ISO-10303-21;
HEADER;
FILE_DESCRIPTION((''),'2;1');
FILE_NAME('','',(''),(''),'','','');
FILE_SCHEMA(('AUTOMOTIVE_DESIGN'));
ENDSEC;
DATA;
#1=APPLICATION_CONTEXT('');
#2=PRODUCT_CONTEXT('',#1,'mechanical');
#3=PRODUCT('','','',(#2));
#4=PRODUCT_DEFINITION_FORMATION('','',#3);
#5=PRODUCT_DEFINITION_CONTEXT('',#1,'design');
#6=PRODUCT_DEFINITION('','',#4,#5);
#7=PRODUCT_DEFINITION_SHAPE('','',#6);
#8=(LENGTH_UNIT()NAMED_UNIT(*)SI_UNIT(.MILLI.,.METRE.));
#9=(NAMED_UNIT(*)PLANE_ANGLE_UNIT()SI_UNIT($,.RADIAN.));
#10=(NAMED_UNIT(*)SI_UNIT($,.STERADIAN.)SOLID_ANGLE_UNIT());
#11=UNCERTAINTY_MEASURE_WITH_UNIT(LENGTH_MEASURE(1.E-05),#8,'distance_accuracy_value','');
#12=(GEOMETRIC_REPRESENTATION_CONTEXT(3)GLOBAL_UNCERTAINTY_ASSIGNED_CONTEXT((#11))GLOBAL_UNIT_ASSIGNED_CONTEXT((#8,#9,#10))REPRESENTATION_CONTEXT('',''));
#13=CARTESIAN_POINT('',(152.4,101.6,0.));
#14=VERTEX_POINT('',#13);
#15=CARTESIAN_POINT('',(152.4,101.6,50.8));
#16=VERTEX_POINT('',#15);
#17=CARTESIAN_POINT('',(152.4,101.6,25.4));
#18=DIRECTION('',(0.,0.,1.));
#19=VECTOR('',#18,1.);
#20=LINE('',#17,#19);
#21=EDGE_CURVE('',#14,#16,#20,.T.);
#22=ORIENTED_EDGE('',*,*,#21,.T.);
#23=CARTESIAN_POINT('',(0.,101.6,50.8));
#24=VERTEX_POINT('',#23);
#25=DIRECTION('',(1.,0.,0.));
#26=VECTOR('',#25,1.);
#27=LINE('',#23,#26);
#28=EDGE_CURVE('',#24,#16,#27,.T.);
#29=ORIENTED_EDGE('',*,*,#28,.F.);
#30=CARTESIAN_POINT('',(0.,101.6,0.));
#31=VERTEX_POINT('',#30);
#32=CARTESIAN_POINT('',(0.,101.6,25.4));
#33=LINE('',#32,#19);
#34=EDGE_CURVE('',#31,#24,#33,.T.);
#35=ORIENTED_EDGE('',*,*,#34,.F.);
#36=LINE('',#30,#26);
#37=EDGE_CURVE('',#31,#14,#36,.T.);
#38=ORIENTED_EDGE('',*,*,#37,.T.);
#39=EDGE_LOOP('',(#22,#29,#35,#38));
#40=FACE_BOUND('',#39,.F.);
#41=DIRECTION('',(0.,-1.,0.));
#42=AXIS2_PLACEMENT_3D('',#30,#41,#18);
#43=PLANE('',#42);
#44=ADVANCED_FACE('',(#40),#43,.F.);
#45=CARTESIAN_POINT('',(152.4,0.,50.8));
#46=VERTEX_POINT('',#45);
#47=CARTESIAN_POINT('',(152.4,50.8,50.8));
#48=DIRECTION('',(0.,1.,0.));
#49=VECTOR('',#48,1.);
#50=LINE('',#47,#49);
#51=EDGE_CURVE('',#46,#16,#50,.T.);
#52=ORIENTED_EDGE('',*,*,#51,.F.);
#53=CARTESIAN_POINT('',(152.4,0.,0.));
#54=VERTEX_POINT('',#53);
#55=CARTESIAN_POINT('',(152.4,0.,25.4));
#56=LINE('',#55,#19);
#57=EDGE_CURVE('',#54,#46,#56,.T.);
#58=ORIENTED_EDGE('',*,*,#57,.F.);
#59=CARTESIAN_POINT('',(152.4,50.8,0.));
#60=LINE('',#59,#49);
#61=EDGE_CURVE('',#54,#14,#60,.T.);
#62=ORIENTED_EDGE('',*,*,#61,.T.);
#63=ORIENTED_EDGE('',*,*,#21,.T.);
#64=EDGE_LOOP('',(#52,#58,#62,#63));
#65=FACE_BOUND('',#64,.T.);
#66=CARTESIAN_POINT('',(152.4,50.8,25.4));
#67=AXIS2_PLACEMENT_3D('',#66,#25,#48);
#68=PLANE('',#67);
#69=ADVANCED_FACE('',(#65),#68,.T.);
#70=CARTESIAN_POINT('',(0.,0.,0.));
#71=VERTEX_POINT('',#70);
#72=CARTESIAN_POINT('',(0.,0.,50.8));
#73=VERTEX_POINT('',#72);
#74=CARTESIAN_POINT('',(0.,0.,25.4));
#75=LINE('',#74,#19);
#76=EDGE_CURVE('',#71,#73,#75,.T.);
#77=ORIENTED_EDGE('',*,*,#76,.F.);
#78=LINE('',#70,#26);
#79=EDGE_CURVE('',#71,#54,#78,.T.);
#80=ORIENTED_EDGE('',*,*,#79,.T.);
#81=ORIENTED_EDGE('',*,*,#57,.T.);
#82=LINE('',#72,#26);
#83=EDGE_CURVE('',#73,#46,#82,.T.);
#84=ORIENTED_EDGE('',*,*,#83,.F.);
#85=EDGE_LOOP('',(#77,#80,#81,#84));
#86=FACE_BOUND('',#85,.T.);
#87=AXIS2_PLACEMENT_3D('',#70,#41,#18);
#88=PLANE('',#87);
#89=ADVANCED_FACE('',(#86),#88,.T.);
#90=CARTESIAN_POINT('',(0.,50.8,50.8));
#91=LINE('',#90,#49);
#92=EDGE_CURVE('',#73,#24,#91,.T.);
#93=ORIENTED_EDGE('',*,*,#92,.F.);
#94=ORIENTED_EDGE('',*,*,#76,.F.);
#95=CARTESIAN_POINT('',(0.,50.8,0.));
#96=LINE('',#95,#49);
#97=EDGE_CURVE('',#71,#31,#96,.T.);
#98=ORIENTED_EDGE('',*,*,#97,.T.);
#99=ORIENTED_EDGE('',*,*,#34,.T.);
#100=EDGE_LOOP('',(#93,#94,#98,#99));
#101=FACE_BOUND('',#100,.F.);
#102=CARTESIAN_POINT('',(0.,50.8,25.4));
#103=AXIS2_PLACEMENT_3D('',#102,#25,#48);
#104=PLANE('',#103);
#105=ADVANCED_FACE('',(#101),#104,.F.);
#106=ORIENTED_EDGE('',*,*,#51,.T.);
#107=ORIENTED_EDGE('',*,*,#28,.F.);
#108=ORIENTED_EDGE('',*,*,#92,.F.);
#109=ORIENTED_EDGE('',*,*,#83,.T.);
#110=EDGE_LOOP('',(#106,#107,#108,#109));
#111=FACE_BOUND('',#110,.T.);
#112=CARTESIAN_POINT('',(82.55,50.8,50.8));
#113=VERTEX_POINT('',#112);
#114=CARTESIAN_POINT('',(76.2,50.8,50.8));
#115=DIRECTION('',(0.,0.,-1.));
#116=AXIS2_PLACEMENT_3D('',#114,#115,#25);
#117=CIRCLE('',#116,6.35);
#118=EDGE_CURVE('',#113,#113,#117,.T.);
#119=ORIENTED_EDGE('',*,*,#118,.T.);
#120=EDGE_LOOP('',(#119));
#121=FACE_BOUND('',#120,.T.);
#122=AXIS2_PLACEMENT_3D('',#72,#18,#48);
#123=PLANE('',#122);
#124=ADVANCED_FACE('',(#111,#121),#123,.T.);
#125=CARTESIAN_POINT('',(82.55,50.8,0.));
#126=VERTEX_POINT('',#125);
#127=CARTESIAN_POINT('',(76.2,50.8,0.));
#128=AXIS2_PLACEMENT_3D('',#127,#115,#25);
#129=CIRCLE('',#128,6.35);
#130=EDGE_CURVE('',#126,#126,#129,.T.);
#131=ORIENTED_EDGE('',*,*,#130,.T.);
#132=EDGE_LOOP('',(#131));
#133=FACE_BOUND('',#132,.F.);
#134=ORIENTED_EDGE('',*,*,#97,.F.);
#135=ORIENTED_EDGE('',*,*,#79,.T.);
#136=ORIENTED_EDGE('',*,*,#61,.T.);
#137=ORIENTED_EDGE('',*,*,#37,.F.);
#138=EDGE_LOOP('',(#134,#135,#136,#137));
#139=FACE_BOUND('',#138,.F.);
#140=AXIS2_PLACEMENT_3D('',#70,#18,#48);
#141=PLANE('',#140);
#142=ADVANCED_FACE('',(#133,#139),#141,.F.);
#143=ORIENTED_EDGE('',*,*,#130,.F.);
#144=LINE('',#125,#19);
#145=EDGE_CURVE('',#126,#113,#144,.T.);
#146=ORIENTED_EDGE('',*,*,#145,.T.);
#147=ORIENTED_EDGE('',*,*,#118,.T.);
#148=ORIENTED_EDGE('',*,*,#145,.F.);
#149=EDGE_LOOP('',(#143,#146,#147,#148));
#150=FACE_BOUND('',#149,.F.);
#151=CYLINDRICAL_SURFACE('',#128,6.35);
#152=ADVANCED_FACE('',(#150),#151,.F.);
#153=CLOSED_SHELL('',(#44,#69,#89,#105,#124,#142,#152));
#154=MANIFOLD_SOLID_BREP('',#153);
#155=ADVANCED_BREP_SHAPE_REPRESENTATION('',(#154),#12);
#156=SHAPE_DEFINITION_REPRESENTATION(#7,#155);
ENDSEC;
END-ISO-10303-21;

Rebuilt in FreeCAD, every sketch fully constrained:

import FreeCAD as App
import Part
import Sketcher

V = App.Vector
Q = App.Units.Quantity

doc = App.newDocument("Part")
body = doc.addObject("PartDesign::Body", "Body")

sketch1 = body.newObject("Sketcher::SketchObject", "Sketch")
sketch1.AttachmentSupport = (doc.getObject("YZ_Plane"), [""])
sketch1.MapMode = "FlatFace"
sketch1.addGeometry([
    Part.LineSegment(V(0, 51, 0), V(0, 0, 0)),
    Part.LineSegment(V(0, 0, 0), V(102, 0, 0)),
    Part.LineSegment(V(102, 0, 0), V(102, 51, 0)),
    Part.LineSegment(V(102, 51, 0), V(0, 51, 0)),
], False)
sketch1.addConstraint([
    Sketcher.Constraint("Coincident", 0, 2, 1, 1),
    Sketcher.Constraint("Coincident", 1, 2, 2, 1),
    Sketcher.Constraint("Coincident", 2, 2, 3, 1),
    Sketcher.Constraint("Coincident", 3, 2, 0, 1),
    Sketcher.Constraint("Vertical", 0),
    Sketcher.Constraint("Horizontal", 1),
    Sketcher.Constraint("Vertical", 2),
    Sketcher.Constraint("Horizontal", 3),
    Sketcher.Constraint("Coincident", 0, 2, -1, 1),
    Sketcher.Constraint("DistanceX", 1, 1, 1, 2, Q("4 in")),
    Sketcher.Constraint("DistanceY", 0, 2, 0, 1, Q("2 in")),
])
pad1 = body.newObject("PartDesign::Pad", "Pad")
pad1.Profile = sketch1
pad1.Length = Q("6 in")

sketch2 = body.newObject("Sketcher::SketchObject", "Sketch001")
sketch2.AttachmentSupport = (doc.getObject("XY_Plane"), [""])
sketch2.MapMode = "FlatFace"
sketch2.addGeometry(Part.Circle(V(76, 51, 0), V(0, 0, 1), 6), False)
sketch2.addConstraint([
    Sketcher.Constraint("Diameter", 0, Q("0.5 in")),
    Sketcher.Constraint("DistanceX", -1, 1, 0, 3, Q("3 in")),
    Sketcher.Constraint("DistanceY", -1, 1, 0, 3, Q("2 in")),
])
pocket1 = body.newObject("PartDesign::Pocket", "Pocket")
pocket1.Profile = sketch2
pocket1.Length = Q("2 in")
pocket1.Reversed = True

doc.recompute()
